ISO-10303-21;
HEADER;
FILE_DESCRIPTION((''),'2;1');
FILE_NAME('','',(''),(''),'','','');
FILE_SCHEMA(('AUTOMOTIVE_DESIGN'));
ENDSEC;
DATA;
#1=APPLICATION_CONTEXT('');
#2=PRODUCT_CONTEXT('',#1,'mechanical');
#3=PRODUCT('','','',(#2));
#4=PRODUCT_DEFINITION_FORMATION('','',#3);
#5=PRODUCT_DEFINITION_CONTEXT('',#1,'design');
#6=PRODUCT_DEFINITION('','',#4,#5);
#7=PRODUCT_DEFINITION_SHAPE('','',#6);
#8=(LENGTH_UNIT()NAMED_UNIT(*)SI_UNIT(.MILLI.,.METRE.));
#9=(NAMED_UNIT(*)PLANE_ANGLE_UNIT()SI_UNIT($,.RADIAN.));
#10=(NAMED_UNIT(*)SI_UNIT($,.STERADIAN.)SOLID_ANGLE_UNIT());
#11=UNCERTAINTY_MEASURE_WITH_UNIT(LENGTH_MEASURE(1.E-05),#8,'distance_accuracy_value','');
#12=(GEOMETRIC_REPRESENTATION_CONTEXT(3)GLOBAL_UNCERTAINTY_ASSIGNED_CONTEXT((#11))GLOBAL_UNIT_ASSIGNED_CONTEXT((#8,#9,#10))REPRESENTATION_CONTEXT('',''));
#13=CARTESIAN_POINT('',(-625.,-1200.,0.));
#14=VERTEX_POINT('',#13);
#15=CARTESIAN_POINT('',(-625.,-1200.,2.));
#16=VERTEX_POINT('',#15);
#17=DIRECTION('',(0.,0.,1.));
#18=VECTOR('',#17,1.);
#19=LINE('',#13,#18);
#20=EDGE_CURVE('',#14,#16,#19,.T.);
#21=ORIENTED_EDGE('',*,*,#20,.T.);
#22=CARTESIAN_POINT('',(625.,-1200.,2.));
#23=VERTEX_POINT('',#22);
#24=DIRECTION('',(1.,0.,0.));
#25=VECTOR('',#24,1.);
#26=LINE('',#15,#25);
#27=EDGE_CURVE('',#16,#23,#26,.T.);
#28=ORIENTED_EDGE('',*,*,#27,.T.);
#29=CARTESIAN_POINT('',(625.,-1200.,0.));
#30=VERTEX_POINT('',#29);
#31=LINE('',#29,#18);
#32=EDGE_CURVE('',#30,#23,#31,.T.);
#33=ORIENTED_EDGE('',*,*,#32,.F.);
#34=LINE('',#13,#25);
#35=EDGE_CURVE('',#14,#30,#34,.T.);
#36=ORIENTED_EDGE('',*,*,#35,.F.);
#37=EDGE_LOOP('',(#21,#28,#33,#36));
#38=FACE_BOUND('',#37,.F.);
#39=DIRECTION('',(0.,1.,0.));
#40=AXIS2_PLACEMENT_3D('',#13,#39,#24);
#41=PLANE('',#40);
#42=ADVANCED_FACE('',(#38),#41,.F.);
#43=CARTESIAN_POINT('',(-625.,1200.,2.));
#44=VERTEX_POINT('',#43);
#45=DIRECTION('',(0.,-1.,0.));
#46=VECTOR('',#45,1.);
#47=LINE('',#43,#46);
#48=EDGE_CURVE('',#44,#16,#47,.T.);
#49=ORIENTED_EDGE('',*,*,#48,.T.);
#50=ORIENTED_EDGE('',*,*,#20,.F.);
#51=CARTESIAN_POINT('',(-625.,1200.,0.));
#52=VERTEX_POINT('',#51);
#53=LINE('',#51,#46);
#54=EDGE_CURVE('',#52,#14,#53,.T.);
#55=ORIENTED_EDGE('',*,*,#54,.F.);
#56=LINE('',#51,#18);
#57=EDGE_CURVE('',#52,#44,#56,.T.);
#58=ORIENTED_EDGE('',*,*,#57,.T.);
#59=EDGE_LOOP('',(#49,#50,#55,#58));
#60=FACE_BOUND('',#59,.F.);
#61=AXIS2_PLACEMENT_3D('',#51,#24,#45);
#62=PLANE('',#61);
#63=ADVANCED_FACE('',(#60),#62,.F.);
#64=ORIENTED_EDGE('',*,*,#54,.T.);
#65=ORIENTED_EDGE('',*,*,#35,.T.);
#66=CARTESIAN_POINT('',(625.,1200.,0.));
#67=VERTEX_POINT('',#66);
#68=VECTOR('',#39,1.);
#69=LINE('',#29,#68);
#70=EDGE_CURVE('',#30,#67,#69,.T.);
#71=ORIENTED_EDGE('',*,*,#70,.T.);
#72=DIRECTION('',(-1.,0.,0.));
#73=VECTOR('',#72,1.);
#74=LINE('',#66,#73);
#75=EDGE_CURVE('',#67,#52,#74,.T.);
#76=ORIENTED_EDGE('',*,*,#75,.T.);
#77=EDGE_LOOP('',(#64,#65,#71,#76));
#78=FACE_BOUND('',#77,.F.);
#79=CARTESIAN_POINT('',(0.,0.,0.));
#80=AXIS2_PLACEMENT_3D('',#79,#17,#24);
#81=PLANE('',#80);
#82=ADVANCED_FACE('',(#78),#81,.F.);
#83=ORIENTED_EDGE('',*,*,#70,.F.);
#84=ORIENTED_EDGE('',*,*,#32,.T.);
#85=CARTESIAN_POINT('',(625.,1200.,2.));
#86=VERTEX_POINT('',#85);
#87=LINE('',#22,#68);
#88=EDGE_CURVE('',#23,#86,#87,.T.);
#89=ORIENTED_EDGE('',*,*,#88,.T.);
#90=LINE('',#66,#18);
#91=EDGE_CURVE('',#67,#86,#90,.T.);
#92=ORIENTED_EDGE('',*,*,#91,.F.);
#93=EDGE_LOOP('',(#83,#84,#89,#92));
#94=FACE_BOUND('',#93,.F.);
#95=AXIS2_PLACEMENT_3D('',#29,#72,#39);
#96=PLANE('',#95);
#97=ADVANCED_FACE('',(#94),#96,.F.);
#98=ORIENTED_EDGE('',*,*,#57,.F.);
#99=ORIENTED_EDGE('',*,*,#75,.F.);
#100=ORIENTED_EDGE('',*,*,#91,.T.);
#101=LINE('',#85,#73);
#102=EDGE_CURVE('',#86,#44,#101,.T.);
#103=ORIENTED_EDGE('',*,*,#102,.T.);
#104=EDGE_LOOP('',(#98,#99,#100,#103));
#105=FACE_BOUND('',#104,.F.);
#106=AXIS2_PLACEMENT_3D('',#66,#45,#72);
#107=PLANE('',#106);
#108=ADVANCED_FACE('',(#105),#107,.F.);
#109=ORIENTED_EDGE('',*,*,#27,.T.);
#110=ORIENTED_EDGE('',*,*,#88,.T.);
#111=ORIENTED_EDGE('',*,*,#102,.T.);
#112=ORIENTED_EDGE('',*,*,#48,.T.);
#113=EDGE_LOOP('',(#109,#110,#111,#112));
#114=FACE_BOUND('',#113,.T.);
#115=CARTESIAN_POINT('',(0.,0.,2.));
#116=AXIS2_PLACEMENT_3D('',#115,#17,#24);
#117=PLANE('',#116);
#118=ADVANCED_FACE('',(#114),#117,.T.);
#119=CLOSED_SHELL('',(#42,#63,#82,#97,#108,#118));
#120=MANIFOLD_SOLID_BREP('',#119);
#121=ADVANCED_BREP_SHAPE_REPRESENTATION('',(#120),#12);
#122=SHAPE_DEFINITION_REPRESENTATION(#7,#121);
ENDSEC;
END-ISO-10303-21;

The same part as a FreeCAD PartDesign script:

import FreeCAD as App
import Part
import Sketcher
Q = App.Units.Quantity

doc = App.newDocument("Part")
body = doc.addObject("PartDesign::Body", "Body")

# Sketch on XY plane
sketch1 = body.newObject("Sketcher::SketchObject", "Sketch")
sketch1.AttachmentSupport = (doc.getObject("XY_Plane"), [""])
sketch1.MapMode = "FlatFace"
sketch1.addGeometry(Part.LineSegment(App.Vector(-625, 1200, 0), App.Vector(-625, -1200, 0)), False)
sketch1.addGeometry(Part.LineSegment(App.Vector(-625, -1200, 0), App.Vector(625, -1200, 0)), False)
sketch1.addGeometry(Part.LineSegment(App.Vector(625, -1200, 0), App.Vector(625, 1200, 0)), False)
sketch1.addGeometry(Part.LineSegment(App.Vector(625, 1200, 0), App.Vector(-625, 1200, 0)), False)
sketch1.addConstraint(Sketcher.Constraint("Coincident", 0, 2, 1, 1))
sketch1.addConstraint(Sketcher.Constraint("Coincident", 1, 2, 2, 1))
sketch1.addConstraint(Sketcher.Constraint("Coincident", 2, 2, 3, 1))
sketch1.addConstraint(Sketcher.Constraint("Coincident", 3, 2, 0, 1))
sketch1.addConstraint(Sketcher.Constraint("Vertical", 0))
sketch1.addConstraint(Sketcher.Constraint("Horizontal", 1))
sketch1.addConstraint(Sketcher.Constraint("Vertical", 2))
sketch1.addConstraint(Sketcher.Constraint("Horizontal", 3))
sketch1.addConstraint(Sketcher.Constraint("Symmetric", 0, 2, 2, 2, -1, 1))
sketch1.addConstraint(Sketcher.Constraint("DistanceX", 1, 1, 1, 2, Q("1250 mm")))
sketch1.addConstraint(Sketcher.Constraint("DistanceY", 0, 2, 0, 1, Q("2400 mm")))
pad1 = body.newObject("PartDesign::Pad", "Pad")
pad1.Profile = sketch1
pad1.Length = 2

doc.recompute()
